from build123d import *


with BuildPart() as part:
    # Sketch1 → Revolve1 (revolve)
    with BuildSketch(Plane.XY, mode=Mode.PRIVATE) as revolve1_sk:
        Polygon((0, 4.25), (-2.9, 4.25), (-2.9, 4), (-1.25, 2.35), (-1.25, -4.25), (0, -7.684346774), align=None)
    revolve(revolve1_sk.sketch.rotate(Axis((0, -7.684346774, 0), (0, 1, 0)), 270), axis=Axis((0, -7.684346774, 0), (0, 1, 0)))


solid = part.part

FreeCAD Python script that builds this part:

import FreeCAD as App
import Part
import Sketcher
from FreeCAD import Vector
Q = App.Units.Quantity


def add_polygon(sketch, points):
    """Adds a closed chain of lines whose ends are joined by coincident constraints."""
    first, n = sketch.GeometryCount, len(points)
    for a, b in zip(points, points[1:] + points[:1]):
        sketch.addGeometry(Part.LineSegment(App.Vector(*a, 0), App.Vector(*b, 0)), False)
    for i in range(n):
        sketch.addConstraint(Sketcher.Constraint("Coincident", first + i, 2, first + (i + 1) % n, 1))

doc = App.newDocument("Part")
body = doc.addObject("PartDesign::Body", "Body")

# Sketch on XY plane
sketch1 = body.newObject("Sketcher::SketchObject", "Sketch")
sketch1.AttachmentSupport = (doc.getObject("XY_Plane"), [""])
sketch1.MapMode = "FlatFace"
add_polygon(sketch1, [(0, 4.25), (-2.9, 4.25), (-2.9, 4), (-1.25, 2.35), (-1.25, -4.25), (0, -7.68)])  # lines 0-5
sketch1.addConstraint([
    Sketcher.Constraint("Horizontal", 0),
    Sketcher.Constraint("Vertical", 1),
    Sketcher.Constraint("Vertical", 3),
    Sketcher.Constraint("Vertical", 5),
    Sketcher.Constraint("PointOnObject", 4, 2, -2),
    Sketcher.Constraint("Angle", 2, Q("-45 deg")),
    Sketcher.Constraint("Angle", 4, Q("-70 deg")),
    Sketcher.Constraint("DistanceX", 0, 2, 0, 1, 2.9),
    Sketcher.Constraint("DistanceY", 3, 2, 3, 1, 6.6),
    Sketcher.Constraint("DistanceY", -1, 1, 1, 2, 4.0),
    Sketcher.Constraint("DistanceY", 1, 2, 1, 1, 0.25),
    Sketcher.Constraint("DistanceY", 2, 2, 0, 2, 1.9),
])
revolution = body.newObject("PartDesign::Revolution", "Revolution")
revolution.Profile = sketch1
revolution.ReferenceAxis = (sketch1, ["V_Axis"])
revolution.Angle = 360

doc.recompute()
